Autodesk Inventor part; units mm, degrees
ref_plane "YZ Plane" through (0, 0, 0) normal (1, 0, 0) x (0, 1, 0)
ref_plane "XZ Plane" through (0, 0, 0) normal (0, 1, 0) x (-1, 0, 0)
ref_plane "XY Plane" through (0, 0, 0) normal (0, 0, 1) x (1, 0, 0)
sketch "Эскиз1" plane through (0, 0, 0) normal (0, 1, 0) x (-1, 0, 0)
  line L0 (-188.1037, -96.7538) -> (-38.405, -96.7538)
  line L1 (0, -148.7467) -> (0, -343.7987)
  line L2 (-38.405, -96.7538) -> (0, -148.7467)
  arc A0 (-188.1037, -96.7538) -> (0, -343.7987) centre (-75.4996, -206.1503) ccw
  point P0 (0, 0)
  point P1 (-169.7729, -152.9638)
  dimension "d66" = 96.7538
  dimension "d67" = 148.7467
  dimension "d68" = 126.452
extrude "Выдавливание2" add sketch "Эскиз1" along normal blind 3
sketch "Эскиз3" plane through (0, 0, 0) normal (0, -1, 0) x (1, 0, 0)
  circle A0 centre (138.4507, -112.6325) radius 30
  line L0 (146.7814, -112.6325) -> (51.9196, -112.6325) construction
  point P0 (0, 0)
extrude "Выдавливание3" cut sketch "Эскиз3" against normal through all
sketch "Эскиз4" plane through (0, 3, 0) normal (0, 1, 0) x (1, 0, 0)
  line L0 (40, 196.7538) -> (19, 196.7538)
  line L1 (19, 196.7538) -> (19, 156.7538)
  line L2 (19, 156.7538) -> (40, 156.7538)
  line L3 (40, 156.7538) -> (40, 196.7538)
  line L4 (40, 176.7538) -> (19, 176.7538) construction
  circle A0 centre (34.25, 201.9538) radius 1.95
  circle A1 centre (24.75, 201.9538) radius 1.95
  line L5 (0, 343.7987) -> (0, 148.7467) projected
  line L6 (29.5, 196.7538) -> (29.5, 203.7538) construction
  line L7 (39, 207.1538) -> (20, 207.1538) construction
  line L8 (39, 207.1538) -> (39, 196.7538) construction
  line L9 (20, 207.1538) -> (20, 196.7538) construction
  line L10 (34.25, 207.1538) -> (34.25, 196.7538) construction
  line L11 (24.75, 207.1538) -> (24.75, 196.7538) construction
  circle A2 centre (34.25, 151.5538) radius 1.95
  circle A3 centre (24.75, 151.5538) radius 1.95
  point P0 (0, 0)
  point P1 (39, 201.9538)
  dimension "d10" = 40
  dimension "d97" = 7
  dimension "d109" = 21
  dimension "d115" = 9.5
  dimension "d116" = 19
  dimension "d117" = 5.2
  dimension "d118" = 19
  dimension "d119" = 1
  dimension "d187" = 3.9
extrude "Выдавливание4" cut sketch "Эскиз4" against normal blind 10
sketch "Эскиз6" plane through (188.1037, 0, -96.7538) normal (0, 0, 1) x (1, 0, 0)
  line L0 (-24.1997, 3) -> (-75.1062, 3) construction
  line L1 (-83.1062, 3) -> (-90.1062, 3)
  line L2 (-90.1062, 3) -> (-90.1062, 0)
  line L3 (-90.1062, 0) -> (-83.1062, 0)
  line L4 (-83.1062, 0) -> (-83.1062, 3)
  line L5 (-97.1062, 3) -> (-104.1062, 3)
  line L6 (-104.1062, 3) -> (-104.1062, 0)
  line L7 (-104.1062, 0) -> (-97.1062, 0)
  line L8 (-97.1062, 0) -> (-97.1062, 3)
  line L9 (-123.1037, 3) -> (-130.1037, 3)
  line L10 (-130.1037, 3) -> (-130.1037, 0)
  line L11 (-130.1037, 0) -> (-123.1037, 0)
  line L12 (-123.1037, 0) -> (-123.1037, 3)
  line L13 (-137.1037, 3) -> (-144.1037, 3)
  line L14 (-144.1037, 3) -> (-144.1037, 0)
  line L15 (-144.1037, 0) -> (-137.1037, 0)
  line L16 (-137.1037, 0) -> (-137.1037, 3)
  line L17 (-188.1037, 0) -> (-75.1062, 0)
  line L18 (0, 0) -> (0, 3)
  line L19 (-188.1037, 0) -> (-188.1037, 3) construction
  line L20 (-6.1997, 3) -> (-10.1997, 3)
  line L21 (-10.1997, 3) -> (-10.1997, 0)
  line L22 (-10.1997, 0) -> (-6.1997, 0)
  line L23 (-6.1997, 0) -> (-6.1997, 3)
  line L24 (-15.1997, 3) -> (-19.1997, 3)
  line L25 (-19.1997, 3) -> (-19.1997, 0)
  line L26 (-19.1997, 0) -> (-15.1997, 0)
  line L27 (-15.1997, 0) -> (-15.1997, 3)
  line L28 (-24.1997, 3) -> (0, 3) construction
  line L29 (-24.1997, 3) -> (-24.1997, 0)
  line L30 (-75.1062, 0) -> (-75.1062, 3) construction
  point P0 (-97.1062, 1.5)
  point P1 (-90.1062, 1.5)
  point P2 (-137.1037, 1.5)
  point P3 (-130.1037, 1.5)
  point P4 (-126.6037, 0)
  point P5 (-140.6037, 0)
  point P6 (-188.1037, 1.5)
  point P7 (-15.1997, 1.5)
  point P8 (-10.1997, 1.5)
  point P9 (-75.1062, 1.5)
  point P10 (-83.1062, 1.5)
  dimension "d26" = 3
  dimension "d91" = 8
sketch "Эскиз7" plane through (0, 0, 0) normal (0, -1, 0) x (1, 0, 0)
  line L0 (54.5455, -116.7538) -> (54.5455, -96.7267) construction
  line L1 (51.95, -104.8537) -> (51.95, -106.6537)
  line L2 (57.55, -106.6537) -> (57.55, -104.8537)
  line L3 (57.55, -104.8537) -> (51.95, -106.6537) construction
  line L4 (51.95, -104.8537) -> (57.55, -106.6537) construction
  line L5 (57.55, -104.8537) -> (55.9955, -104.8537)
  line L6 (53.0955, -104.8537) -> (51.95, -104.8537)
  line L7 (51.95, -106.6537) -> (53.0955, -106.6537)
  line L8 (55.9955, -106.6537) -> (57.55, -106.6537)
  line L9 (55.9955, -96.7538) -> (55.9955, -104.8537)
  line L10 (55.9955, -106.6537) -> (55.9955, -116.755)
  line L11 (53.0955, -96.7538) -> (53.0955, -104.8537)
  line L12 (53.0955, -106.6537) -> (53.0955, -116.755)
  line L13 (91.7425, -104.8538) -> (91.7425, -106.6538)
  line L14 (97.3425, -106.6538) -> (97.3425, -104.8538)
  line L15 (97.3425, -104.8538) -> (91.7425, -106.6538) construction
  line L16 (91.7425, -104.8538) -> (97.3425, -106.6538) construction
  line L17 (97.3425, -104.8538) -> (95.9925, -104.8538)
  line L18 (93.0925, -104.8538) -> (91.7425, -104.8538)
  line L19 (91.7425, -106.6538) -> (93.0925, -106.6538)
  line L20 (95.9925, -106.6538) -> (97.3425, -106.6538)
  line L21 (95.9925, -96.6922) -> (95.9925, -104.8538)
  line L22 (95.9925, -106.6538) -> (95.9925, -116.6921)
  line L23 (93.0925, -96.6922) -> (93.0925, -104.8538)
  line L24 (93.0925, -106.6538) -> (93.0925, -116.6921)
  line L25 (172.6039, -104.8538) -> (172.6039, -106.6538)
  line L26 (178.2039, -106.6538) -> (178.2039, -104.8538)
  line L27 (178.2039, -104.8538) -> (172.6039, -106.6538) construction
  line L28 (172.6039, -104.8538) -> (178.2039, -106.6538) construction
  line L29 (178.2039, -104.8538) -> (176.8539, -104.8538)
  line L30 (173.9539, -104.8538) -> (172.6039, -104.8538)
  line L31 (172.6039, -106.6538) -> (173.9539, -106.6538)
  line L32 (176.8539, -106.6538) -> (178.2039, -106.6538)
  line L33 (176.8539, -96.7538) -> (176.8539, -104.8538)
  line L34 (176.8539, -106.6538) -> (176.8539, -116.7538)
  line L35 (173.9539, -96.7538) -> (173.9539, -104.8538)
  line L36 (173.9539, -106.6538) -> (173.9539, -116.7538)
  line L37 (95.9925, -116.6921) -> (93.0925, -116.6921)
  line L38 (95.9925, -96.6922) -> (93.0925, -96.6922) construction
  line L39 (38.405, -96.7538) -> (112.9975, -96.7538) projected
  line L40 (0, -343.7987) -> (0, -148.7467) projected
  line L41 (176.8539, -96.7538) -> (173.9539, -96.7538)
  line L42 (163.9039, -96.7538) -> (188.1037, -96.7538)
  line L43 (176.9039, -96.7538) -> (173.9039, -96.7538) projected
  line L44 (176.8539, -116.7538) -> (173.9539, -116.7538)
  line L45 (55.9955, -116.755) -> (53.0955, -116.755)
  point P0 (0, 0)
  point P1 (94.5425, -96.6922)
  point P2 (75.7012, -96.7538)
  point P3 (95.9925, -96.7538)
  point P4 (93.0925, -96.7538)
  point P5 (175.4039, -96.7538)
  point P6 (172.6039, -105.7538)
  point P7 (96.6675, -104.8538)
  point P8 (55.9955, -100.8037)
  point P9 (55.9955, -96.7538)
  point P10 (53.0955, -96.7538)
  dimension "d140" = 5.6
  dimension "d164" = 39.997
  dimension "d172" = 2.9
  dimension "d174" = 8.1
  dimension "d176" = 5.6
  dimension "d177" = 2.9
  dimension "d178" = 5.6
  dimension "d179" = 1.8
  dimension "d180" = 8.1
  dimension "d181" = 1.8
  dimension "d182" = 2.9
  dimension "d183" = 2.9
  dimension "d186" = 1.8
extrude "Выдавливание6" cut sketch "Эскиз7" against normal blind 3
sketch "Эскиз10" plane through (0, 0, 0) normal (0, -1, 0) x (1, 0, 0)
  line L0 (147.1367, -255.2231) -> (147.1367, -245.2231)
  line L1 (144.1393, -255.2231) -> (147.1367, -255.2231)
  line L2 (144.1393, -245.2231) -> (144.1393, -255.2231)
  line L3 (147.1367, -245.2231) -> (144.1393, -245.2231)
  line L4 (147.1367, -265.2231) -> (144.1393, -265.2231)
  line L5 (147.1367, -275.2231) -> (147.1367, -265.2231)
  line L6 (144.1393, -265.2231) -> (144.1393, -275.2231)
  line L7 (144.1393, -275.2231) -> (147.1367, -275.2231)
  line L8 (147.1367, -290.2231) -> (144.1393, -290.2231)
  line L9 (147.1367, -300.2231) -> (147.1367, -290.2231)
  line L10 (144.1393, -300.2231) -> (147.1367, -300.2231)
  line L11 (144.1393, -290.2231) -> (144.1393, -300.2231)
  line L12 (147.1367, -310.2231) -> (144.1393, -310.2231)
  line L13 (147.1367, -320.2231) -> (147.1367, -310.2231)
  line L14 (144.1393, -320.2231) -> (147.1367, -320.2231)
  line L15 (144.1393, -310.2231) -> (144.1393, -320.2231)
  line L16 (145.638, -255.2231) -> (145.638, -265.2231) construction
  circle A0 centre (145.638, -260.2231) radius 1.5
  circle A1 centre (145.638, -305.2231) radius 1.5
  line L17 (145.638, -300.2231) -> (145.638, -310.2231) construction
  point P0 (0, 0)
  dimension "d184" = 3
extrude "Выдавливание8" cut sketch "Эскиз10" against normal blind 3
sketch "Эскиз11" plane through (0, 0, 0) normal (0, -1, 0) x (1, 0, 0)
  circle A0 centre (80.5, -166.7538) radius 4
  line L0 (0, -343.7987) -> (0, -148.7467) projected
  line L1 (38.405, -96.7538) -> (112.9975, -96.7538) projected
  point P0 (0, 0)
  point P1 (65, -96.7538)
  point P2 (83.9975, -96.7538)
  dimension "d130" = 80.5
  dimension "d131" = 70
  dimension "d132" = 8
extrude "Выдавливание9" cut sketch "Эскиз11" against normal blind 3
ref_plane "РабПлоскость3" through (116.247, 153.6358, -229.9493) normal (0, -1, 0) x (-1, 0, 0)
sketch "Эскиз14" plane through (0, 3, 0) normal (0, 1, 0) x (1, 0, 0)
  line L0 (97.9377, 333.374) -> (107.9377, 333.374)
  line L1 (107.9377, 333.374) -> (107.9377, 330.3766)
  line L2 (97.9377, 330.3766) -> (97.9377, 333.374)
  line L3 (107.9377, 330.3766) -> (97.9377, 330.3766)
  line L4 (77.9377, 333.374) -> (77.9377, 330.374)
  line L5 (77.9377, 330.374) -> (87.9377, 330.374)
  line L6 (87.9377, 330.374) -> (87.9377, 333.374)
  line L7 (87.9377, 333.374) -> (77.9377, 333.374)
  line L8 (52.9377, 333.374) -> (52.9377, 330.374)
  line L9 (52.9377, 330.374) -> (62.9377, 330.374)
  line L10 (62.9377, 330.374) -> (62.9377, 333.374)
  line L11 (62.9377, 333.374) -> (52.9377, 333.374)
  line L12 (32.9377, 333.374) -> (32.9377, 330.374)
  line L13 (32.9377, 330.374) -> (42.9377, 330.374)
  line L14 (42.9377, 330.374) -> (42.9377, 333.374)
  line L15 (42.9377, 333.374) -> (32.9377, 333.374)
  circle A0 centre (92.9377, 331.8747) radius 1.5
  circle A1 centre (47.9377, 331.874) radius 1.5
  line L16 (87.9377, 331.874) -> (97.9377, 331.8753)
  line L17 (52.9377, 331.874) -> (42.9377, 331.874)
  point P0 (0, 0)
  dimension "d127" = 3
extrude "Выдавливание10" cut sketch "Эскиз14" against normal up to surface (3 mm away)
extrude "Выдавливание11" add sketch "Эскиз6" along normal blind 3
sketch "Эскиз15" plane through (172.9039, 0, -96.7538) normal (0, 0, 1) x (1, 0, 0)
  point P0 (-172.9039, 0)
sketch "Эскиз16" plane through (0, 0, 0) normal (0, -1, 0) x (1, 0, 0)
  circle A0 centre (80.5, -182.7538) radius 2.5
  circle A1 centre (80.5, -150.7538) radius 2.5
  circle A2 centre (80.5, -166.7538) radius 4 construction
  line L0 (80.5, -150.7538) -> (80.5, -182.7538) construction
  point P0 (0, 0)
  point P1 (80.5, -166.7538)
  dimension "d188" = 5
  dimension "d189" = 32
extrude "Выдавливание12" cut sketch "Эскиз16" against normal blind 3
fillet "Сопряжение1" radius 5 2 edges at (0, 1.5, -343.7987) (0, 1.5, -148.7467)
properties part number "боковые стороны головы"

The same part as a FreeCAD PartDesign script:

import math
import FreeCAD as App
import Part
import Sketcher

V = App.Vector


def edges_at(feature, points):
    """Names of the edges that pass closest to the given points."""
    edges = feature.Shape.Edges
    near = lambda p: min(range(len(edges)), key=lambda i: edges[i].distToShape(Part.Vertex(*p))[0])
    return sorted({f"Edge{near(p) + 1}" for p in points})

doc = App.newDocument("Part")
body = doc.addObject("PartDesign::Body", "Body")

# Sketch on XZ plane
sketch1 = body.newObject("Sketcher::SketchObject", "Sketch")
sketch1.AttachmentSupport = (doc.getObject("XZ_Plane"), [""])
sketch1.MapMode = "FlatFace"
sketch1.addGeometry(Part.LineSegment(V(38.405, -96.7538, 0), V(188.1037, -96.7538, 0)), False)
sketch1.addGeometry(Part.ArcOfCircle(Part.Circle(V(75.4996, -206.1503, 0), V(0, 0, 1), 156.994514), math.radians(-118.744593), math.radians(44.172213)), False)
sketch1.addGeometry(Part.LineSegment(V(0, -343.7987, 0), V(0, -148.7467, 0)), False)
sketch1.addGeometry(Part.LineSegment(V(0, -148.7467, 0), V(38.405, -96.7538, 0)), False)
sketch1.addConstraint(Sketcher.Constraint("Coincident", 0, 2, 1, 2))
sketch1.addConstraint(Sketcher.Constraint("Coincident", 1, 1, 2, 1))
sketch1.addConstraint(Sketcher.Constraint("Coincident", 2, 2, 3, 1))
sketch1.addConstraint(Sketcher.Constraint("Coincident", 3, 2, 0, 1))
sketch1.addConstraint(Sketcher.Constraint("Horizontal", 0))
sketch1.addConstraint(Sketcher.Constraint("Vertical", 2))
sketch1.addConstraint(Sketcher.Constraint("PointOnObject", 1, 1, -2))
sketch1.addConstraint(Sketcher.Constraint("DistanceY", 0, 2, -1, 1, 96.7538))
sketch1.addConstraint(Sketcher.Constraint("DistanceY", 2, 2, -1, 1, 148.7467))
sketch1.addConstraint(Sketcher.Constraint("Radius", 1, 156.9945))
sketch1.addConstraint(Sketcher.Constraint("DistanceY", 2, 1, 2, 2, 195.052))
sketch1.addConstraint(Sketcher.Constraint("Distance", 3, 64.639))
sketch1.addConstraint(Sketcher.Constraint("DistanceX", 0, 1, 0, 2, 149.6987))
pad1 = body.newObject("PartDesign::Pad", "Pad")
pad1.Profile = sketch1
pad1.Length = 3
pad1.Reversed = True

# Sketch on XZ plane
sketch2 = body.newObject("Sketcher::SketchObject", "Sketch001")
sketch2.AttachmentSupport = (doc.getObject("XZ_Plane"), [""])
sketch2.MapMode = "FlatFace"
sketch2.addGeometry(Part.Circle(V(138.4507, -112.6325, 0), V(0, 0, 1), 30), False)
sketch2.addConstraint(Sketcher.Constraint("Diameter", 0, 60.0))
sketch2.addConstraint(Sketcher.Constraint("DistanceX", -1, 1, 0, 3, 138.4507))
sketch2.addConstraint(Sketcher.Constraint("DistanceY", 0, 3, -1, 1, 112.6325))
pocket1 = body.newObject("PartDesign::Pocket", "Pocket")
pocket1.Profile = sketch2
pocket1.Type = "ThroughAll"

# Sketch on XZ plane
sketch3 = body.newObject("Sketcher::SketchObject", "Sketch002")
sketch3.AttachmentSupport = (doc.getObject("XZ_Plane"), [""])
sketch3.MapMode = "FlatFace"
sketch3.AttachmentOffset = App.Placement(V(0, 0, -3), App.Rotation())
sketch3.addGeometry(Part.LineSegment(V(40, -156.7538, 0), V(40, -196.7538, 0)), False)
sketch3.addGeometry(Part.LineSegment(V(40, -196.7538, 0), V(19, -196.7538, 0)), False)
sketch3.addGeometry(Part.LineSegment(V(19, -196.7538, 0), V(19, -156.7538, 0)), False)
sketch3.addGeometry(Part.LineSegment(V(19, -156.7538, 0), V(40, -156.7538, 0)), False)
sketch3.addGeometry(Part.Circle(V(34.25, -201.9538, 0), V(0, 0, 1), 1.95), False)
sketch3.addGeometry(Part.Circle(V(24.75, -201.9538, 0), V(0, 0, 1), 1.95), False)
sketch3.addGeometry(Part.Circle(V(34.25, -151.5538, 0), V(0, 0, 1), 1.95), False)
sketch3.addGeometry(Part.Circle(V(24.75, -151.5538, 0), V(0, 0, 1), 1.95), False)
sketch3.addConstraint(Sketcher.Constraint("Coincident", 0, 2, 1, 1))
sketch3.addConstraint(Sketcher.Constraint("Coincident", 1, 2, 2, 1))
sketch3.addConstraint(Sketcher.Constraint("Coincident", 2, 2, 3, 1))
sketch3.addConstraint(Sketcher.Constraint("Coincident", 3, 2, 0, 1))
sketch3.addConstraint(Sketcher.Constraint("Vertical", 0))
sketch3.addConstraint(Sketcher.Constraint("Horizontal", 1))
sketch3.addConstraint(Sketcher.Constraint("Vertical", 2))
sketch3.addConstraint(Sketcher.Constraint("Horizontal", 3))
sketch3.addConstraint(Sketcher.Constraint("Equal", 4, 5))
sketch3.addConstraint(Sketcher.Constraint("Equal", 5, 6))
sketch3.addConstraint(Sketcher.Constraint("Equal", 6, 7))
sketch3.addConstraint(Sketcher.Constraint("Horizontal", 4, 3, 5, 3))
sketch3.addConstraint(Sketcher.Constraint("Horizontal", 6, 3, 7, 3))
sketch3.addConstraint(Sketcher.Constraint("Vertical", 4, 3, 6, 3))
sketch3.addConstraint(Sketcher.Constraint("Vertical", 5, 3, 7, 3))
sketch3.addConstraint(Sketcher.Constraint("Diameter", 4, 3.9))
sketch3.addConstraint(Sketcher.Constraint("DistanceX", 1, 2, 1, 1, 21.0))
sketch3.addConstraint(Sketcher.Constraint("DistanceY", 0, 2, 0, 1, 40.0))
sketch3.addConstraint(Sketcher.Constraint("DistanceX", -1, 1, 0, 2, 40.0))
sketch3.addConstraint(Sketcher.Constraint("DistanceX", 5, 3, 4, 3, 9.5))
sketch3.addConstraint(Sketcher.Constraint("DistanceY", 4, 3, 0, 2, 5.2))
sketch3.addConstraint(Sketcher.Constraint("DistanceY", 2, 2, 7, 3, 5.2))
sketch3.addConstraint(Sketcher.Constraint("DistanceX", -1, 1, 4, 3, 34.25))
sketch3.addConstraint(Sketcher.Constraint("DistanceY", 4, 3, -1, 1, 201.9538))
pocket2 = body.newObject("PartDesign::Pocket", "Pocket001")
pocket2.Profile = sketch3
pocket2.Length = 10
pocket2.Reversed = True

# Sketch on XZ plane
sketch4 = body.newObject("Sketcher::SketchObject", "Sketch003")
sketch4.AttachmentSupport = (doc.getObject("XZ_Plane"), [""])
sketch4.MapMode = "FlatFace"
sketch4.addGeometry(Part.LineSegment(V(53.0955, -104.8537, 0), V(51.95, -104.8537, 0)), False)
sketch4.addGeometry(Part.LineSegment(V(51.95, -104.8537, 0), V(51.95, -106.6537, 0)), False)
sketch4.addGeometry(Part.LineSegment(V(51.95, -106.6537, 0), V(53.0955, -106.6537, 0)), False)
sketch4.addGeometry(Part.LineSegment(V(53.0955, -106.6537, 0), V(53.0955, -116.755, 0)), False)
sketch4.addGeometry(Part.LineSegment(V(53.0955, -116.755, 0), V(55.9955, -116.755, 0)), False)
sketch4.addGeometry(Part.LineSegment(V(55.9955, -116.755, 0), V(55.9955, -106.6537, 0)), False)
sketch4.addGeometry(Part.LineSegment(V(55.9955, -106.6537, 0), V(57.55, -106.6537, 0)), False)
sketch4.addGeometry(Part.LineSegment(V(57.55, -106.6537, 0), V(57.55, -104.8537, 0)), False)
sketch4.addGeometry(Part.LineSegment(V(57.55, -104.8537, 0), V(55.9955, -104.8537, 0)), False)
sketch4.addGeometry(Part.LineSegment(V(55.9955, -104.8537, 0), V(55.9955, -96.7538, 0)), False)
sketch4.addGeometry(Part.LineSegment(V(55.9955, -96.7538, 0), V(53.0955, -96.7538, 0)), False)
sketch4.addGeometry(Part.LineSegment(V(53.0955, -96.7538, 0), V(53.0955, -104.8537, 0)), False)
sketch4.addGeometry(Part.LineSegment(V(95.9925, -96.7538, 0), V(93.0925, -96.7538, 0)), False)
sketch4.addGeometry(Part.LineSegment(V(93.0925, -96.7538, 0), V(93.0925, -104.8538, 0)), False)
sketch4.addGeometry(Part.LineSegment(V(93.0925, -104.8538, 0), V(91.7425, -104.8538, 0)), False)
sketch4.addGeometry(Part.LineSegment(V(91.7425, -104.8538, 0), V(91.7425, -106.6538, 0)), False)
sketch4.addGeometry(Part.LineSegment(V(91.7425, -106.6538, 0), V(93.0925, -106.6538, 0)), False)
sketch4.addGeometry(Part.LineSegment(V(93.0925, -106.6538, 0), V(93.0925, -116.6921, 0)), False)
sketch4.addGeometry(Part.LineSegment(V(93.0925, -116.6921, 0), V(95.9925, -116.6921, 0)), False)
sketch4.addGeometry(Part.LineSegment(V(95.9925, -116.6921, 0), V(95.9925, -106.6538, 0)), False)
sketch4.addGeometry(Part.LineSegment(V(95.9925, -106.6538, 0), V(97.3425, -106.6538, 0)), False)
sketch4.addGeometry(Part.LineSegment(V(97.3425, -106.6538, 0), V(97.3425, -104.8538, 0)), False)
sketch4.addGeometry(Part.LineSegment(V(97.3425, -104.8538, 0), V(95.9925, -104.8538, 0)), False)
sketch4.addGeometry(Part.LineSegment(V(95.9925, -104.8538, 0), V(95.9925, -96.7538, 0)), False)
sketch4.addGeometry(Part.LineSegment(V(173.9539, -104.8538, 0), V(172.6039, -104.8538, 0)), False)
sketch4.addGeometry(Part.LineSegment(V(172.6039, -104.8538, 0), V(172.6039, -106.6538, 0)), False)
sketch4.addGeometry(Part.LineSegment(V(172.6039, -106.6538, 0), V(173.9539, -106.6538, 0)), False)
sketch4.addGeometry(Part.LineSegment(V(173.9539, -106.6538, 0), V(173.9539, -116.7538, 0)), False)
sketch4.addGeometry(Part.LineSegment(V(173.9539, -116.7538, 0), V(176.8539, -116.7538, 0)), False)
sketch4.addGeometry(Part.LineSegment(V(176.8539, -116.7538, 0), V(176.8539, -106.6538, 0)), False)
sketch4.addGeometry(Part.LineSegment(V(176.8539, -106.6538, 0), V(178.2039, -106.6538, 0)), False)
sketch4.addGeometry(Part.LineSegment(V(178.2039, -106.6538, 0), V(178.2039, -104.8538, 0)), False)
sketch4.addGeometry(Part.LineSegment(V(178.2039, -104.8538, 0), V(176.8539, -104.8538, 0)), False)
sketch4.addGeometry(Part.LineSegment(V(176.8539, -104.8538, 0), V(176.8539, -96.7538, 0)), False)
sketch4.addGeometry(Part.LineSegment(V(176.8539, -96.7538, 0), V(173.9539, -96.7538, 0)), False)
sketch4.addGeometry(Part.LineSegment(V(173.9539, -96.7538, 0), V(173.9539, -104.8538, 0)), False)
sketch4.addConstraint(Sketcher.Constraint("Coincident", 0, 2, 1, 1))
sketch4.addConstraint(Sketcher.Constraint("Coincident", 1, 2, 2, 1))
sketch4.addConstraint(Sketcher.Constraint("Coincident", 2, 2, 3, 1))
sketch4.addConstraint(Sketcher.Constraint("Coincident", 3, 2, 4, 1))
sketch4.addConstraint(Sketcher.Constraint("Coincident", 4, 2, 5, 1))
sketch4.addConstraint(Sketcher.Constraint("Coincident", 5, 2, 6, 1))
sketch4.addConstraint(Sketcher.Constraint("Coincident", 6, 2, 7, 1))
sketch4.addConstraint(Sketcher.Constraint("Coincident", 7, 2, 8, 1))
sketch4.addConstraint(Sketcher.Constraint("Coincident", 8, 2, 9, 1))
sketch4.addConstraint(Sketcher.Constraint("Coincident", 9, 2, 10, 1))
sketch4.addConstraint(Sketcher.Constraint("Coincident", 10, 2, 11, 1))
sketch4.addConstraint(Sketcher.Constraint("Coincident", 11, 2, 0, 1))
sketch4.addConstraint(Sketcher.Constraint("Coincident", 12, 2, 13, 1))
sketch4.addConstraint(Sketcher.Constraint("Coincident", 13, 2, 14, 1))
sketch4.addConstraint(Sketcher.Constraint("Coincident", 14, 2, 15, 1))
sketch4.addConstraint(Sketcher.Constraint("Coincident", 15, 2, 16, 1))
sketch4.addConstraint(Sketcher.Constraint("Coincident", 16, 2, 17, 1))
sketch4.addConstraint(Sketcher.Constraint("Coincident", 17, 2, 18, 1))
sketch4.addConstraint(Sketcher.Constraint("Coincident", 18, 2, 19, 1))
sketch4.addConstraint(Sketcher.Constraint("Coincident", 19, 2, 20, 1))
sketch4.addConstraint(Sketcher.Constraint("Coincident", 20, 2, 21, 1))
sketch4.addConstraint(Sketcher.Constraint("Coincident", 21, 2, 22, 1))
sketch4.addConstraint(Sketcher.Constraint("Coincident", 22, 2, 23, 1))
sketch4.addConstraint(Sketcher.Constraint("Coincident", 23, 2, 12, 1))
sketch4.addConstraint(Sketcher.Constraint("Coincident", 24, 2, 25, 1))
sketch4.addConstraint(Sketcher.Constraint("Coincident", 25, 2, 26, 1))
sketch4.addConstraint(Sketcher.Constraint("Coincident", 26, 2, 27, 1))
sketch4.addConstraint(Sketcher.Constraint("Coincident", 27, 2, 28, 1))
sketch4.addConstraint(Sketcher.Constraint("Coincident", 28, 2, 29, 1))
sketch4.addConstraint(Sketcher.Constraint("Coincident", 29, 2, 30, 1))
sketch4.addConstraint(Sketcher.Constraint("Coincident", 30, 2, 31, 1))
sketch4.addConstraint(Sketcher.Constraint("Coincident", 31, 2, 32, 1))
sketch4.addConstraint(Sketcher.Constraint("Coincident", 32, 2, 33, 1))
sketch4.addConstraint(Sketcher.Constraint("Coincident", 33, 2, 34, 1))
sketch4.addConstraint(Sketcher.Constraint("Coincident", 34, 2, 35, 1))
sketch4.addConstraint(Sketcher.Constraint("Coincident", 35, 2, 24, 1))
sketch4.addConstraint(Sketcher.Constraint("Horizontal", 0))
sketch4.addConstraint(Sketcher.Constraint("Vertical", 1))
sketch4.addConstraint(Sketcher.Constraint("Horizontal", 2))
sketch4.addConstraint(Sketcher.Constraint("Vertical", 3))
sketch4.addConstraint(Sketcher.Constraint("Horizontal", 4))
sketch4.addConstraint(Sketcher.Constraint("Vertical", 5))
sketch4.addConstraint(Sketcher.Constraint("Horizontal", 6))
sketch4.addConstraint(Sketcher.Constraint("Vertical", 7))
sketch4.addConstraint(Sketcher.Constraint("Horizontal", 8))
sketch4.addConstraint(Sketcher.Constraint("Vertical", 9))
sketch4.addConstraint(Sketcher.Constraint("Horizontal", 10))
sketch4.addConstraint(Sketcher.Constraint("Vertical", 11))
sketch4.addConstraint(Sketcher.Constraint("Horizontal", 12))
sketch4.addConstraint(Sketcher.Constraint("Vertical", 13))
sketch4.addConstraint(Sketcher.Constraint("Horizontal", 14))
sketch4.addConstraint(Sketcher.Constraint("Vertical", 15))
sketch4.addConstraint(Sketcher.Constraint("Horizontal", 16))
sketch4.addConstraint(Sketcher.Constraint("Vertical", 17))
sketch4.addConstraint(Sketcher.Constraint("Horizontal", 18))
sketch4.addConstraint(Sketcher.Constraint("Vertical", 19))
sketch4.addConstraint(Sketcher.Constraint("Horizontal", 20))
sketch4.addConstraint(Sketcher.Constraint("Vertical", 21))
sketch4.addConstraint(Sketcher.Constraint("Horizontal", 22))
sketch4.addConstraint(Sketcher.Constraint("Vertical", 23))
sketch4.addConstraint(Sketcher.Constraint("Horizontal", 24))
sketch4.addConstraint(Sketcher.Constraint("Vertical", 25))
sketch4.addConstraint(Sketcher.Constraint("Horizontal", 26))
sketch4.addConstraint(Sketcher.Constraint("Vertical", 27))
sketch4.addConstraint(Sketcher.Constraint("Horizontal", 28))
sketch4.addConstraint(Sketcher.Constraint("Vertical", 29))
sketch4.addConstraint(Sketcher.Constraint("Horizontal", 30))
sketch4.addConstraint(Sketcher.Constraint("Vertical", 31))
sketch4.addConstraint(Sketcher.Constraint("Horizontal", 32))
sketch4.addConstraint(Sketcher.Constraint("Vertical", 33))
sketch4.addConstraint(Sketcher.Constraint("Horizontal", 34))
sketch4.addConstraint(Sketcher.Constraint("Vertical", 35))
sketch4.addConstraint(Sketcher.Constraint("Horizontal", 2, 2, 5, 2))
sketch4.addConstraint(Sketcher.Constraint("Horizontal", 0, 2, 7, 2))
sketch4.addConstraint(Sketcher.Constraint("Horizontal", 10, 2, 12, 2))
sketch4.addConstraint(Sketcher.Constraint("Horizontal", 11, 2, 13, 2))
sketch4.addConstraint(Sketcher.Constraint("Horizontal", 6, 2, 15, 2))
sketch4.addConstraint(Sketcher.Constraint("Horizontal", 16, 2, 19, 2))
sketch4.addConstraint(Sketcher.Constraint("Horizontal", 14, 2, 21, 2))
sketch4.addConstraint(Sketcher.Constraint("Horizontal", 22, 2, 24, 2))
sketch4.addConstraint(Sketcher.Constraint("Horizontal", 20, 2, 25, 2))
sketch4.addConstraint(Sketcher.Constraint("Horizontal", 26, 2, 29, 2))
sketch4.addConstraint(Sketcher.Constraint("Horizontal", 24, 2, 31, 2))
sketch4.addConstraint(Sketcher.Constraint("Horizontal", 23, 2, 33, 2))
sketch4.addConstraint(Sketcher.Constraint("Vertical", 5, 2, 8, 2))
sketch4.addConstraint(Sketcher.Constraint("Vertical", 3, 2, 10, 2))
sketch4.addConstraint(Sketcher.Constraint("Vertical", 13, 2, 16, 2))
sketch4.addConstraint(Sketcher.Constraint("Vertical", 19, 2, 22, 2))
sketch4.addConstraint(Sketcher.Constraint("Vertical", 29, 2, 32, 2))
sketch4.addConstraint(Sketcher.Constraint("Vertical", 27, 2, 34, 2))
sketch4.addConstraint(Sketcher.Constraint("Equal", 10, 12))
sketch4.addConstraint(Sketcher.Constraint("Equal", 16, 20))
sketch4.addConstraint(Sketcher.Constraint("Equal", 22, 24))
sketch4.addConstraint(Sketcher.Constraint("Equal", 18, 28))
sketch4.addConstraint(Sketcher.Constraint("Equal", 26, 30))
sketch4.addConstraint(Sketcher.Constraint("DistanceX", 4, 1, 4, 2, 2.9))
sketch4.addConstraint(Sketcher.Constraint("DistanceY", 1, 2, 1, 1, 1.8))
sketch4.addConstraint(Sketcher.Constraint("DistanceY", 9, 1, 9, 2, 8.1))
sketch4.addConstraint(Sketcher.Constraint("DistanceX", 1, 2, 6, 2, 5.6))
sketch4.addConstraint(Sketcher.Constraint("DistanceX", 15, 2, 20, 2, 5.6))
sketch4.addConstraint(Sketcher.Constraint("DistanceY", 27, 2, 27, 1, 10.1))
sketch4.addConstraint(Sketcher.Constraint("DistanceX", -1, 1, 0, 2, 51.95))
sketch4.addConstraint(Sketcher.Constraint("DistanceX", 0, 2, 0, 1, 1.1455))
sketch4.addConstraint(Sketcher.Constraint("DistanceY", 3, 2, 3, 1, 10.1013))
sketch4.addConstraint(Sketcher.Constraint("DistanceY", 17, 2, 17, 1, 10.0383))
sketch4.addConstraint(Sketcher.Constraint("DistanceY", 3, 2, -1, 1, 116.755))
sketch4.addConstraint(Sketcher.Constraint("DistanceX", -1, 1, 24, 2, 172.604))
sketch4.addConstraint(Sketcher.Constraint("DistanceX", 9, 2, 12, 2, 37.097))
pocket3 = body.newObject("PartDesign::Pocket", "Pocket002")
pocket3.Profile = sketch4
pocket3.Length = 3

# Sketch on XZ plane
sketch5 = body.newObject("Sketcher::SketchObject", "Sketch004")
sketch5.AttachmentSupport = (doc.getObject("XZ_Plane"), [""])
sketch5.MapMode = "FlatFace"
sketch5.addGeometry(Part.LineSegment(V(144.1393, -255.2231, 0), V(147.1367, -255.2231, 0)), False)
sketch5.addGeometry(Part.LineSegment(V(147.1367, -255.2231, 0), V(147.1367, -245.2231, 0)), False)
sketch5.addGeometry(Part.LineSegment(V(147.1367, -245.2231, 0), V(144.1393, -245.2231, 0)), False)
sketch5.addGeometry(Part.LineSegment(V(144.1393, -245.2231, 0), V(144.1393, -255.2231, 0)), False)
sketch5.addGeometry(Part.LineSegment(V(147.1367, -275.2231, 0), V(147.1367, -265.2231, 0)), False)
sketch5.addGeometry(Part.LineSegment(V(147.1367, -265.2231, 0), V(144.1393, -265.2231, 0)), False)
sketch5.addGeometry(Part.LineSegment(V(144.1393, -265.2231, 0), V(144.1393, -275.2231, 0)), False)
sketch5.addGeometry(Part.LineSegment(V(144.1393, -275.2231, 0), V(147.1367, -275.2231, 0)), False)
sketch5.addGeometry(Part.LineSegment(V(147.1367, -300.2231, 0), V(147.1367, -290.2231, 0)), False)
sketch5.addGeometry(Part.LineSegment(V(147.1367, -290.2231, 0), V(144.1393, -290.2231, 0)), False)
sketch5.addGeometry(Part.LineSegment(V(144.1393, -290.2231, 0), V(144.1393, -300.2231, 0)), False)
sketch5.addGeometry(Part.LineSegment(V(144.1393, -300.2231, 0), V(147.1367, -300.2231, 0)), False)
sketch5.addGeometry(Part.LineSegment(V(147.1367, -320.2231, 0), V(147.1367, -310.2231, 0)), False)
sketch5.addGeometry(Part.LineSegment(V(147.1367, -310.2231, 0), V(144.1393, -310.2231, 0)), False)
sketch5.addGeometry(Part.LineSegment(V(144.1393, -310.2231, 0), V(144.1393, -320.2231, 0)), False)
sketch5.addGeometry(Part.LineSegment(V(144.1393, -320.2231, 0), V(147.1367, -320.2231, 0)), False)
sketch5.addGeometry(Part.Circle(V(145.638, -260.2231, 0), V(0, 0, 1), 1.5), False)
sketch5.addGeometry(Part.Circle(V(145.638, -305.2231, 0), V(0, 0, 1), 1.5), False)
sketch5.addConstraint(Sketcher.Constraint("Coincident", 0, 2, 1, 1))
sketch5.addConstraint(Sketcher.Constraint("Coincident", 1, 2, 2, 1))
sketch5.addConstraint(Sketcher.Constraint("Coincident", 2, 2, 3, 1))
sketch5.addConstraint(Sketcher.Constraint("Coincident", 3, 2, 0, 1))
sketch5.addConstraint(Sketcher.Constraint("Coincident", 4, 2, 5, 1))
sketch5.addConstraint(Sketcher.Constraint("Coincident", 5, 2, 6, 1))
sketch5.addConstraint(Sketcher.Constraint("Coincident", 6, 2, 7, 1))
sketch5.addConstraint(Sketcher.Constraint("Coincident", 7, 2, 4, 1))
sketch5.addConstraint(Sketcher.Constraint("Coincident", 8, 2, 9, 1))
sketch5.addConstraint(Sketcher.Constraint("Coincident", 9, 2, 10, 1))
sketch5.addConstraint(Sketcher.Constraint("Coincident", 10, 2, 11, 1))
sketch5.addConstraint(Sketcher.Constraint("Coincident", 11, 2, 8, 1))
sketch5.addConstraint(Sketcher.Constraint("Coincident", 12, 2, 13, 1))
sketch5.addConstraint(Sketcher.Constraint("Coincident", 13, 2, 14, 1))
sketch5.addConstraint(Sketcher.Constraint("Coincident", 14, 2, 15, 1))
sketch5.addConstraint(Sketcher.Constraint("Coincident", 15, 2, 12, 1))
sketch5.addConstraint(Sketcher.Constraint("Horizontal", 0))
sketch5.addConstraint(Sketcher.Constraint("Vertical", 1))
sketch5.addConstraint(Sketcher.Constraint("Horizontal", 2))
sketch5.addConstraint(Sketcher.Constraint("Vertical", 3))
sketch5.addConstraint(Sketcher.Constraint("Vertical", 4))
sketch5.addConstraint(Sketcher.Constraint("Horizontal", 5))
sketch5.addConstraint(Sketcher.Constraint("Vertical", 6))
sketch5.addConstraint(Sketcher.Constraint("Horizontal", 7))
sketch5.addConstraint(Sketcher.Constraint("Vertical", 8))
sketch5.addConstraint(Sketcher.Constraint("Horizontal", 9))
sketch5.addConstraint(Sketcher.Constraint("Vertical", 10))
sketch5.addConstraint(Sketcher.Constraint("Horizontal", 11))
sketch5.addConstraint(Sketcher.Constraint("Vertical", 12))
sketch5.addConstraint(Sketcher.Constraint("Horizontal", 13))
sketch5.addConstraint(Sketcher.Constraint("Vertical", 14))
sketch5.addConstraint(Sketcher.Constraint("Horizontal", 15))
sketch5.addConstraint(Sketcher.Constraint("Equal", 16, 17))
sketch5.addConstraint(Sketcher.Constraint("Vertical", 16, 3, 17, 3))
sketch5.addConstraint(Sketcher.Constraint("Vertical", 1, 2, 4, 2))
sketch5.addConstraint(Sketcher.Constraint("Vertical", 3, 2, 5, 2))
sketch5.addConstraint(Sketcher.Constraint("Vertical", 7, 2, 8, 2))
sketch5.addConstraint(Sketcher.Constraint("Vertical", 6, 2, 9, 2))
sketch5.addConstraint(Sketcher.Constraint("Vertical", 11, 2, 12, 2))
sketch5.addConstraint(Sketcher.Constraint("Vertical", 10, 2, 13, 2))
sketch5.addConstraint(Sketcher.Constraint("Equal", 3, 4))
sketch5.addConstraint(Sketcher.Constraint("Equal", 6, 8))
sketch5.addConstraint(Sketcher.Constraint("Equal", 10, 12))
sketch5.addConstraint(Sketcher.Constraint("Diameter", 16, 3.0))
sketch5.addConstraint(Sketcher.Constraint("DistanceY", 1, 1, 1, 2, 10.0))
sketch5.addConstraint(Sketcher.Constraint("DistanceY", 17, 3, 16, 3, 45.0))
sketch5.addConstraint(Sketcher.Constraint("DistanceY", 16, 3, 0, 2, 5.0))
sketch5.addConstraint(Sketcher.Constraint("DistanceY", 4, 2, 16, 3, 5.0))
sketch5.addConstraint(Sketcher.Constraint("DistanceY", 8, 2, 7, 2, 15.0))
sketch5.addConstraint(Sketcher.Constraint("DistanceY", 12, 2, 17, 3, 5.0))
sketch5.addConstraint(Sketcher.Constraint("DistanceX", 0, 1, 0, 2, 2.9974))
sketch5.addConstraint(Sketcher.Constraint("DistanceX", -1, 1, 16, 3, 145.638))
sketch5.addConstraint(Sketcher.Constraint("DistanceY", 16, 3, -1, 1, 260.223))
sketch5.addConstraint(Sketcher.Constraint("DistanceX", -1, 1, 0, 2, 147.1367))
pocket4 = body.newObject("PartDesign::Pocket", "Pocket003")
pocket4.Profile = sketch5
pocket4.Length = 3

# Sketch on XZ plane
sketch6 = body.newObject("Sketcher::SketchObject", "Sketch005")
sketch6.AttachmentSupport = (doc.getObject("XZ_Plane"), [""])
sketch6.MapMode = "FlatFace"
sketch6.addGeometry(Part.Circle(V(80.5, -166.7538, 0), V(0, 0, 1), 4), False)
sketch6.addConstraint(Sketcher.Constraint("Diameter", 0, 8.0))
sketch6.addConstraint(Sketcher.Constraint("DistanceX", -1, 1, 0, 3, 80.5))
sketch6.addConstraint(Sketcher.Constraint("DistanceY", 0, 3, -1, 1, 166.7538))
pocket5 = body.newObject("PartDesign::Pocket", "Pocket004")
pocket5.Profile = sketch6
pocket5.Length = 3

# Sketch on XZ plane
sketch7 = body.newObject("Sketcher::SketchObject", "Sketch006")
sketch7.AttachmentSupport = (doc.getObject("XZ_Plane"), [""])
sketch7.MapMode = "FlatFace"
sketch7.AttachmentOffset = App.Placement(V(0, 0, -3), App.Rotation())
sketch7.addGeometry(Part.LineSegment(V(87.9377, -330.374, 0), V(87.9377, -333.374, 0)), False)
sketch7.addGeometry(Part.LineSegment(V(87.9377, -333.374, 0), V(77.9377, -333.374, 0)), False)
sketch7.addGeometry(Part.LineSegment(V(77.9377, -333.374, 0), V(77.9377, -330.374, 0)), False)
sketch7.addGeometry(Part.LineSegment(V(77.9377, -330.374, 0), V(87.9377, -330.374, 0)), False)
sketch7.addGeometry(Part.Circle(V(92.9377, -331.8747, 0), V(0, 0, 1), 1.5), False)
sketch7.addGeometry(Part.LineSegment(V(107.9377, -333.374, 0), V(97.9377, -333.374, 0)), False)
sketch7.addGeometry(Part.LineSegment(V(97.9377, -333.374, 0), V(97.9377, -330.3766, 0)), False)
sketch7.addGeometry(Part.LineSegment(V(97.9377, -330.3766, 0), V(107.9377, -330.3766, 0)), False)
sketch7.addGeometry(Part.LineSegment(V(107.9377, -330.3766, 0), V(107.9377, -333.374, 0)), False)
sketch7.addGeometry(Part.LineSegment(V(62.9377, -333.374, 0), V(52.9377, -333.374, 0)), False)
sketch7.addGeometry(Part.LineSegment(V(52.9377, -333.374, 0), V(52.9377, -330.374, 0)), False)
sketch7.addGeometry(Part.LineSegment(V(52.9377, -330.374, 0), V(62.9377, -330.374, 0)), False)
sketch7.addGeometry(Part.LineSegment(V(62.9377, -330.374, 0), V(62.9377, -333.374, 0)), False)
sketch7.addGeometry(Part.LineSegment(V(42.9377, -330.374, 0), V(42.9377, -333.374, 0)), False)
sketch7.addGeometry(Part.LineSegment(V(42.9377, -333.374, 0), V(32.9377, -333.374, 0)), False)
sketch7.addGeometry(Part.LineSegment(V(32.9377, -333.374, 0), V(32.9377, -330.374, 0)), False)
sketch7.addGeometry(Part.LineSegment(V(32.9377, -330.374, 0), V(42.9377, -330.374, 0)), False)
sketch7.addGeometry(Part.Circle(V(47.9377, -331.874, 0), V(0, 0, 1), 1.5), False)
sketch7.addConstraint(Sketcher.Constraint("Coincident", 0, 2, 1, 1))
sketch7.addConstraint(Sketcher.Constraint("Coincident", 1, 2, 2, 1))
sketch7.addConstraint(Sketcher.Constraint("Coincident", 2, 2, 3, 1))
sketch7.addConstraint(Sketcher.Constraint("Coincident", 3, 2, 0, 1))
sketch7.addConstraint(Sketcher.Constraint("Coincident", 5, 2, 6, 1))
sketch7.addConstraint(Sketcher.Constraint("Coincident", 6, 2, 7, 1))
sketch7.addConstraint(Sketcher.Constraint("Coincident", 7, 2, 8, 1))
sketch7.addConstraint(Sketcher.Constraint("Coincident", 8, 2, 5, 1))
sketch7.addConstraint(Sketcher.Constraint("Coincident", 9, 2, 10, 1))
sketch7.addConstraint(Sketcher.Constraint("Coincident", 10, 2, 11, 1))
sketch7.addConstraint(Sketcher.Constraint("Coincident", 11, 2, 12, 1))
sketch7.addConstraint(Sketcher.Constraint("Coincident", 12, 2, 9, 1))
sketch7.addConstraint(Sketcher.Constraint("Coincident", 13, 2, 14, 1))
sketch7.addConstraint(Sketcher.Constraint("Coincident", 14, 2, 15, 1))
sketch7.addConstraint(Sketcher.Constraint("Coincident", 15, 2, 16, 1))
sketch7.addConstraint(Sketcher.Constraint("Coincident", 16, 2, 13, 1))
sketch7.addConstraint(Sketcher.Constraint("Vertical", 0))
sketch7.addConstraint(Sketcher.Constraint("Horizontal", 1))
sketch7.addConstraint(Sketcher.Constraint("Vertical", 2))
sketch7.addConstraint(Sketcher.Constraint("Horizontal", 3))
sketch7.addConstraint(Sketcher.Constraint("Horizontal", 5))
sketch7.addConstraint(Sketcher.Constraint("Vertical", 6))
sketch7.addConstraint(Sketcher.Constraint("Horizontal", 7))
sketch7.addConstraint(Sketcher.Constraint("Vertical", 8))
sketch7.addConstraint(Sketcher.Constraint("Horizontal", 9))
sketch7.addConstraint(Sketcher.Constraint("Vertical", 10))
sketch7.addConstraint(Sketcher.Constraint("Horizontal", 11))
sketch7.addConstraint(Sketcher.Constraint("Vertical", 12))
sketch7.addConstraint(Sketcher.Constraint("Vertical", 13))
sketch7.addConstraint(Sketcher.Constraint("Horizontal", 14))
sketch7.addConstraint(Sketcher.Constraint("Vertical", 15))
sketch7.addConstraint(Sketcher.Constraint("Horizontal", 16))
sketch7.addConstraint(Sketcher.Constraint("Equal", 4, 17))
sketch7.addConstraint(Sketcher.Constraint("Horizontal", 1, 2, 5, 2))
sketch7.addConstraint(Sketcher.Constraint("Horizontal", 8, 2, 9, 2))
sketch7.addConstraint(Sketcher.Constraint("Horizontal", 3, 2, 10, 2))
sketch7.addConstraint(Sketcher.Constraint("Horizontal", 12, 2, 13, 2))
sketch7.addConstraint(Sketcher.Constraint("Horizontal", 11, 2, 15, 2))
sketch7.addConstraint(Sketcher.Constraint("Equal", 3, 5))
sketch7.addConstraint(Sketcher.Constraint("Equal", 7, 9))
sketch7.addConstraint(Sketcher.Constraint("Equal", 11, 14))
sketch7.addConstraint(Sketcher.Constraint("Diameter", 4, 3.0))
sketch7.addConstraint(Sketcher.Constraint("DistanceY", 0, 2, 0, 1, 3.0))
sketch7.addConstraint(Sketcher.Constraint("DistanceX", 1, 2, 1, 1, 10.0))
sketch7.addConstraint(Sketcher.Constraint("DistanceX", 17, 3, 4, 3, 45.0))
sketch7.addConstraint(Sketcher.Constraint("DistanceX", 0, 2, 4, 3, 5.0))
sketch7.addConstraint(Sketcher.Constraint("DistanceX", 4, 3, 5, 2, 5.0))
sketch7.addConstraint(Sketcher.Constraint("DistanceX", 17, 3, 9, 2, 5.0))
sketch7.addConstraint(Sketcher.Constraint("DistanceX", 13, 2, 17, 3, 5.0))
sketch7.addConstraint(Sketcher.Constraint("DistanceY", 0, 2, 17, 3, 1.5))
sketch7.addConstraint(Sketcher.Constraint("DistanceY", 6, 1, 6, 2, 2.9974))
sketch7.addConstraint(Sketcher.Constraint("DistanceY", 17, 3, -1, 1, 331.874))
sketch7.addConstraint(Sketcher.Constraint("DistanceY", 4, 3, 6, 2, 1.498))
sketch7.addConstraint(Sketcher.Constraint("DistanceX", -1, 1, 4, 3, 92.9377))
pocket6 = body.newObject("PartDesign::Pocket", "Pocket005")
pocket6.Profile = sketch7
pocket6.Length = 3
pocket6.Reversed = True

# Sketch on XY plane
sketch8 = body.newObject("Sketcher::SketchObject", "Sketch007")
sketch8.AttachmentSupport = (doc.getObject("XY_Plane"), [""])
sketch8.MapMode = "FlatFace"
sketch8.AttachmentOffset = App.Placement(V(0, 0, -96.7538), App.Rotation())
sketch8.addGeometry(Part.LineSegment(V(104.9975, 0, 0), V(104.9975, 3, 0)), False)
sketch8.addGeometry(Part.LineSegment(V(104.9975, 3, 0), V(97.9975, 3, 0)), False)
sketch8.addGeometry(Part.LineSegment(V(97.9975, 3, 0), V(97.9975, 0, 0)), False)
sketch8.addGeometry(Part.LineSegment(V(97.9975, 0, 0), V(104.9975, 0, 0)), False)
sketch8.addGeometry(Part.LineSegment(V(44, 0, 0), V(51, 0, 0)), False)
sketch8.addGeometry(Part.LineSegment(V(51, 0, 0), V(51, 3, 0)), False)
sketch8.addGeometry(Part.LineSegment(V(51, 3, 0), V(44, 3, 0)), False)
sketch8.addGeometry(Part.LineSegment(V(44, 3, 0), V(44, 0, 0)), False)
sketch8.addGeometry(Part.LineSegment(V(58, 0, 0), V(65, 0, 0)), False)
sketch8.addGeometry(Part.LineSegment(V(65, 0, 0), V(65, 3, 0)), False)
sketch8.addGeometry(Part.LineSegment(V(65, 3, 0), V(58, 3, 0)), False)
sketch8.addGeometry(Part.LineSegment(V(58, 3, 0), V(58, 0, 0)), False)
sketch8.addGeometry(Part.LineSegment(V(83.9975, 0, 0), V(90.9975, 0, 0)), False)
sketch8.addGeometry(Part.LineSegment(V(90.9975, 0, 0), V(90.9975, 3, 0)), False)
sketch8.addGeometry(Part.LineSegment(V(90.9975, 3, 0), V(83.9975, 3, 0)), False)
sketch8.addGeometry(Part.LineSegment(V(83.9975, 3, 0), V(83.9975, 0, 0)), False)
sketch8.addGeometry(Part.LineSegment(V(181.904, 0, 0), V(181.904, 3, 0)), False)
sketch8.addGeometry(Part.LineSegment(V(181.904, 3, 0), V(177.904, 3, 0)), False)
sketch8.addGeometry(Part.LineSegment(V(177.904, 3, 0), V(177.904, 0, 0)), False)
sketch8.addGeometry(Part.LineSegment(V(177.904, 0, 0), V(181.904, 0, 0)), False)
sketch8.addGeometry(Part.LineSegment(V(172.904, 0, 0), V(172.904, 3, 0)), False)
sketch8.addGeometry(Part.LineSegment(V(172.904, 3, 0), V(168.904, 3, 0)), False)
sketch8.addGeometry(Part.LineSegment(V(168.904, 3, 0), V(168.904, 0, 0)), False)
sketch8.addGeometry(Part.LineSegment(V(168.904, 0, 0), V(172.904, 0, 0)), False)
sketch8.addConstraint(Sketcher.Constraint("Coincident", 0, 2, 1, 1))
sketch8.addConstraint(Sketcher.Constraint("Coincident", 1, 2, 2, 1))
sketch8.addConstraint(Sketcher.Constraint("Coincident", 2, 2, 3, 1))
sketch8.addConstraint(Sketcher.Constraint("Coincident", 3, 2, 0, 1))
sketch8.addConstraint(Sketcher.Constraint("Coincident", 4, 2, 5, 1))
sketch8.addConstraint(Sketcher.Constraint("Coincident", 5, 2, 6, 1))
sketch8.addConstraint(Sketcher.Constraint("Coincident", 6, 2, 7, 1))
sketch8.addConstraint(Sketcher.Constraint("Coincident", 7, 2, 4, 1))
sketch8.addConstraint(Sketcher.Constraint("Coincident", 8, 2, 9, 1))
sketch8.addConstraint(Sketcher.Constraint("Coincident", 9, 2, 10, 1))
sketch8.addConstraint(Sketcher.Constraint("Coincident", 10, 2, 11, 1))
sketch8.addConstraint(Sketcher.Constraint("Coincident", 11, 2, 8, 1))
sketch8.addConstraint(Sketcher.Constraint("Coincident", 12, 2, 13, 1))
sketch8.addConstraint(Sketcher.Constraint("Coincident", 13, 2, 14, 1))
sketch8.addConstraint(Sketcher.Constraint("Coincident", 14, 2, 15, 1))
sketch8.addConstraint(Sketcher.Constraint("Coincident", 15, 2, 12, 1))
sketch8.addConstraint(Sketcher.Constraint("Coincident", 16, 2, 17, 1))
sketch8.addConstraint(Sketcher.Constraint("Coincident", 17, 2, 18, 1))
sketch8.addConstraint(Sketcher.Constraint("Coincident", 18, 2, 19, 1))
sketch8.addConstraint(Sketcher.Constraint("Coincident", 19, 2, 16, 1))
sketch8.addConstraint(Sketcher.Constraint("Coincident", 20, 2, 21, 1))
sketch8.addConstraint(Sketcher.Constraint("Coincident", 21, 2, 22, 1))
sketch8.addConstraint(Sketcher.Constraint("Coincident", 22, 2, 23, 1))
sketch8.addConstraint(Sketcher.Constraint("Coincident", 23, 2, 20, 1))
sketch8.addConstraint(Sketcher.Constraint("Vertical", 0))
sketch8.addConstraint(Sketcher.Constraint("Horizontal", 1))
sketch8.addConstraint(Sketcher.Constraint("Vertical", 2))
sketch8.addConstraint(Sketcher.Constraint("Horizontal", 3))
sketch8.addConstraint(Sketcher.Constraint("Horizontal", 4))
sketch8.addConstraint(Sketcher.Constraint("Vertical", 5))
sketch8.addConstraint(Sketcher.Constraint("Horizontal", 6))
sketch8.addConstraint(Sketcher.Constraint("Vertical", 7))
sketch8.addConstraint(Sketcher.Constraint("Horizontal", 8))
sketch8.addConstraint(Sketcher.Constraint("Vertical", 9))
sketch8.addConstraint(Sketcher.Constraint("Horizontal", 10))
sketch8.addConstraint(Sketcher.Constraint("Vertical", 11))
sketch8.addConstraint(Sketcher.Constraint("Horizontal", 12))
sketch8.addConstraint(Sketcher.Constraint("Vertical", 13))
sketch8.addConstraint(Sketcher.Constraint("Horizontal", 14))
sketch8.addConstraint(Sketcher.Constraint("Vertical", 15))
sketch8.addConstraint(Sketcher.Constraint("Vertical", 16))
sketch8.addConstraint(Sketcher.Constraint("Horizontal", 17))
sketch8.addConstraint(Sketcher.Constraint("Vertical", 18))
sketch8.addConstraint(Sketcher.Constraint("Horizontal", 19))
sketch8.addConstraint(Sketcher.Constraint("Vertical", 20))
sketch8.addConstraint(Sketcher.Constraint("Horizontal", 21))
sketch8.addConstraint(Sketcher.Constraint("Vertical", 22))
sketch8.addConstraint(Sketcher.Constraint("Horizontal", 23))
sketch8.addConstraint(Sketcher.Constraint("PointOnObject", 2, 2, -1))
sketch8.addConstraint(Sketcher.Constraint("PointOnObject", 4, 2, -1))
sketch8.addConstraint(Sketcher.Constraint("PointOnObject", 8, 2, -1))
sketch8.addConstraint(Sketcher.Constraint("PointOnObject", 12, 2, -1))
sketch8.addConstraint(Sketcher.Constraint("PointOnObject", 18, 2, -1))
sketch8.addConstraint(Sketcher.Constraint("PointOnObject", 22, 2, -1))
sketch8.addConstraint(Sketcher.Constraint("Horizontal", 1, 2, 5, 2))
sketch8.addConstraint(Sketcher.Constraint("Horizontal", 6, 2, 9, 2))
sketch8.addConstraint(Sketcher.Constraint("Horizontal", 10, 2, 13, 2))
sketch8.addConstraint(Sketcher.Constraint("Horizontal", 14, 2, 16, 2))
sketch8.addConstraint(Sketcher.Constraint("Horizontal", 17, 2, 20, 2))
sketch8.addConstraint(Sketcher.Constraint("Equal", 3, 4))
sketch8.addConstraint(Sketcher.Constraint("Equal", 6, 8))
sketch8.addConstraint(Sketcher.Constraint("Equal", 10, 12))
sketch8.addConstraint(Sketcher.Constraint("Equal", 19, 21))
sketch8.addConstraint(Sketcher.Constraint("DistanceY", 0, 1, 0, 2, 3.0))
sketch8.addConstraint(Sketcher.Constraint("DistanceX", 1, 2, 1, 1, 7.0))
sketch8.addConstraint(Sketcher.Constraint("DistanceX", 17, 2, 17, 1, 4.0))
sketch8.addConstraint(Sketcher.Constraint("DistanceX", -1, 1, 4, 2, 51.0))
sketch8.addConstraint(Sketcher.Constraint("DistanceX", -1, 1, 8, 2, 65.0))
sketch8.addConstraint(Sketcher.Constraint("DistanceX", 12, 2, 2, 2, 7.0))
sketch8.addConstraint(Sketcher.Constraint("DistanceX", 20, 2, 17, 2, 5.0))
sketch8.addConstraint(Sketcher.Constraint("DistanceX", -1, 1, 16, 2, 181.904))
sketch8.addConstraint(Sketcher.Constraint("DistanceX", -1, 1, 0, 2, 104.9975))
pad2 = body.newObject("PartDesign::Pad", "Pad001")
pad2.Profile = sketch8
pad2.Length = 3

# Sketch on XZ plane
sketch9 = body.newObject("Sketcher::SketchObject", "Sketch008")
sketch9.AttachmentSupport = (doc.getObject("XZ_Plane"), [""])
sketch9.MapMode = "FlatFace"
sketch9.addGeometry(Part.Circle(V(80.5, -182.7538, 0), V(0, 0, 1), 2.5), False)
sketch9.addGeometry(Part.Circle(V(80.5, -150.7538, 0), V(0, 0, 1), 2.5), False)
sketch9.addConstraint(Sketcher.Constraint("Equal", 0, 1))
sketch9.addConstraint(Sketcher.Constraint("Vertical", 0, 3, 1, 3))
sketch9.addConstraint(Sketcher.Constraint("Diameter", 0, 5.0))
sketch9.addConstraint(Sketcher.Constraint("DistanceY", 0, 3, 1, 3, 32.0))
sketch9.addConstraint(Sketcher.Constraint("DistanceX", -1, 1, 0, 3, 80.5))
sketch9.addConstraint(Sketcher.Constraint("DistanceY", 0, 3, -1, 1, 182.7538))
pocket7 = body.newObject("PartDesign::Pocket", "Pocket006")
pocket7.Profile = sketch9
pocket7.Length = 3
doc.recompute()

fillet = body.newObject("PartDesign::Fillet", "Fillet")
fillet.Base = (pocket7, edges_at(pocket7, [(0, 1.5, -343.799), (0, 1.5, -148.747)]))
fillet.Radius = 5

doc.recompute()
